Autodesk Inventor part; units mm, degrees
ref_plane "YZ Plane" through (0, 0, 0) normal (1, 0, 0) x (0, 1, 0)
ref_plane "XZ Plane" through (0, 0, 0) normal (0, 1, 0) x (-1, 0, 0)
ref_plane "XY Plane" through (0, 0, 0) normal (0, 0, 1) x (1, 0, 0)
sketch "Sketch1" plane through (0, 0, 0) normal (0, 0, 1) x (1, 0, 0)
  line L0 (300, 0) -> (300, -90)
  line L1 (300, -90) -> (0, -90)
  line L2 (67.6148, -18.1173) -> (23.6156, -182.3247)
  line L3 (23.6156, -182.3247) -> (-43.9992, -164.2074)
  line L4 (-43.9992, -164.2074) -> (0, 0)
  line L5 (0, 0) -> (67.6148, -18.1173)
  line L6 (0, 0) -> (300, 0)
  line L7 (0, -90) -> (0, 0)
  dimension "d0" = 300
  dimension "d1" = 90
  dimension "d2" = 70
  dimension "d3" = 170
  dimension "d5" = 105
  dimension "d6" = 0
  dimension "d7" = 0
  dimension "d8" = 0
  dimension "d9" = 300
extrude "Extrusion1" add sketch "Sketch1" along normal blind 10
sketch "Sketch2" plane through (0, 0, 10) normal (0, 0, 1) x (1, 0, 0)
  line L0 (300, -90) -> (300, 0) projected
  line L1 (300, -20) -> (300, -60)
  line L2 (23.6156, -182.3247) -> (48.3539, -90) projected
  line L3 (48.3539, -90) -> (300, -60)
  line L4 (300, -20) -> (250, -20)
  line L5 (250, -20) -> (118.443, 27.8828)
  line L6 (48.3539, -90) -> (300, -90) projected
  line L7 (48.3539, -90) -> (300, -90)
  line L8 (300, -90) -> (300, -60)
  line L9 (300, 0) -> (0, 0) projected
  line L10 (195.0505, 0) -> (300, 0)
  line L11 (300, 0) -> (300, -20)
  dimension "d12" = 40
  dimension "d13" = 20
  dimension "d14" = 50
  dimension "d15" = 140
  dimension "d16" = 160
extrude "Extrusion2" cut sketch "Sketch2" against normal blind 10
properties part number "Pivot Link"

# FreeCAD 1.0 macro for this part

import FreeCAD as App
import Part
import Sketcher
Q = App.Units.Quantity


def add_polygon(sketch, points):
    """Adds a closed chain of lines whose ends are joined by coincident constraints."""
    first, n = sketch.GeometryCount, len(points)
    for a, b in zip(points, points[1:] + points[:1]):
        sketch.addGeometry(Part.LineSegment(App.Vector(*a, 0), App.Vector(*b, 0)), False)
    for i in range(n):
        sketch.addConstraint(Sketcher.Constraint("Coincident", first + i, 2, first + (i + 1) % n, 1))

doc = App.newDocument("Part")
body = doc.addObject("PartDesign::Body", "Body")

# Sketch on XY plane
sketch1 = doc.addObject("Sketcher::SketchObject", "Sketch")
body.addObject(sketch1)
sketch1.AttachmentSupport = (doc.XY_Plane, [""])
sketch1.MapMode = "FlatFace"
add_polygon(sketch1, [(300, -90), (300, 0), (0, 0), (-43.9992, -164.2074), (23.6156, -182.3247), (48.353906, -90)])  # lines 0-5
sketch1.addConstraint(Sketcher.Constraint("Vertical", 0))
sketch1.addConstraint(Sketcher.Constraint("Horizontal", 1))
sketch1.addConstraint(Sketcher.Constraint("Horizontal", 5))
sketch1.addConstraint(Sketcher.Constraint("Coincident", 1, 2, -1, 1))
sketch1.addConstraint(Sketcher.Constraint("Perpendicular", 2, 3))
sketch1.addConstraint(Sketcher.Constraint("Perpendicular", 3, 4))
sketch1.addConstraint(Sketcher.Constraint("DistanceX", 1, 2, 1, 1, 300.0))
sketch1.addConstraint(Sketcher.Constraint("DistanceY", 0, 1, 0, 2, 90.0))
sketch1.addConstraint(Sketcher.Constraint("Angle", 2, Q("-105 deg")))
sketch1.addConstraint(Sketcher.Constraint("Distance", 2, 170.0))
sketch1.addConstraint(Sketcher.Constraint("Distance", 3, 70.0))
pad1 = doc.addObject("PartDesign::Pad", "Pad")
body.addObject(pad1)
pad1.Profile = sketch1
pad1.Length = 10

# Sketch on XY plane
sketch2 = doc.addObject("Sketcher::SketchObject", "Sketch001")
body.addObject(sketch2)
sketch2.AttachmentSupport = (doc.XY_Plane, [""])
sketch2.MapMode = "FlatFace"
sketch2.AttachmentOffset = App.Placement(App.Vector(0, 0, 10), App.Rotation())
add_polygon(sketch2, [(48.3539, -90), (300, -90), (300, -60)])  # lines 0-2
add_polygon(sketch2, [(250, -20), (300, -20), (300, 0), (195.05049, -0.000027)])  # lines 3-6
sketch2.addConstraint(Sketcher.Constraint("Horizontal", 0))
sketch2.addConstraint(Sketcher.Constraint("Vertical", 1))
sketch2.addConstraint(Sketcher.Constraint("Horizontal", 3))
sketch2.addConstraint(Sketcher.Constraint("Vertical", 4))
sketch2.addConstraint(Sketcher.Constraint("Horizontal", 5))
sketch2.addConstraint(Sketcher.Constraint("PointOnObject", 4, 2, -1))
sketch2.addConstraint(Sketcher.Constraint("Vertical", 1, 2, 3, 2))
sketch2.addConstraint(Sketcher.Constraint("DistanceX", 3, 1, 3, 2, 50.0))
sketch2.addConstraint(Sketcher.Constraint("DistanceY", 4, 1, 4, 2, 20.0))
sketch2.addConstraint(Sketcher.Constraint("Angle", 6, Q("-20 deg")))
sketch2.addConstraint(Sketcher.Constraint("DistanceY", 1, 2, 3, 2, 40.0))
sketch2.addConstraint(Sketcher.Constraint("DistanceY", 1, 1, 1, 2, 30.0))
sketch2.addConstraint(Sketcher.Constraint("DistanceX", -1, 1, 0, 2, 300.0))
sketch2.addConstraint(Sketcher.Constraint("DistanceX", 0, 1, 0, 2, 251.646))
pocket1 = doc.addObject("PartDesign::Pocket", "Pocket")
body.addObject(pocket1)
pocket1.Profile = sketch2
pocket1.Length = 10

doc.recompute()
